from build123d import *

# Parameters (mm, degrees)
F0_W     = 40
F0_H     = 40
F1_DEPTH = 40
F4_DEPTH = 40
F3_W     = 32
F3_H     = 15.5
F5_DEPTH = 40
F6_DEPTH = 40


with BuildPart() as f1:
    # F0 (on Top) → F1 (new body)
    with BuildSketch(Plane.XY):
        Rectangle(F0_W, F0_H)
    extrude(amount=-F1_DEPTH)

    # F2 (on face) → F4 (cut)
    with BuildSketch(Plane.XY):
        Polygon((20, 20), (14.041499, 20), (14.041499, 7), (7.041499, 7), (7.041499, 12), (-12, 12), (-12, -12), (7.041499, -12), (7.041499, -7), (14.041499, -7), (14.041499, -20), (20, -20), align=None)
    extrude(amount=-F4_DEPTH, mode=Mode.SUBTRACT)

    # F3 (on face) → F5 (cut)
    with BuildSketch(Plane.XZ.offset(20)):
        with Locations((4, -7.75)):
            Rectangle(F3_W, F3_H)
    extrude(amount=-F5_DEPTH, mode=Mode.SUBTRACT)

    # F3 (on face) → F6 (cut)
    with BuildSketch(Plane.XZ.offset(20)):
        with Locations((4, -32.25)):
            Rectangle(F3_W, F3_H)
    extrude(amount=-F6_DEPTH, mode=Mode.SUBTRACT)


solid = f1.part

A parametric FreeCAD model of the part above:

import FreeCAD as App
import Part
import Sketcher


def add_polygon(sketch, points):
    """Adds a closed chain of lines whose ends are joined by coincident constraints."""
    first, n = sketch.GeometryCount, len(points)
    for a, b in zip(points, points[1:] + points[:1]):
        sketch.addGeometry(Part.LineSegment(App.Vector(*a, 0), App.Vector(*b, 0)), False)
    for i in range(n):
        sketch.addConstraint(Sketcher.Constraint("Coincident", first + i, 2, first + (i + 1) % n, 1))

doc = App.newDocument("Part")
body = doc.addObject("PartDesign::Body", "Body")

# Sketch on XY plane
sketch1 = body.newObject("Sketcher::SketchObject", "Sketch")
sketch1.AttachmentSupport = (doc.getObject("XY_Plane"), [""])
sketch1.MapMode = "FlatFace"
add_polygon(sketch1, [(-20, 20), (-20, -20), (20, -20), (20, 20)])  # lines 0-3
sketch1.addConstraint(Sketcher.Constraint("Vertical", 0))
sketch1.addConstraint(Sketcher.Constraint("Horizontal", 1))
sketch1.addConstraint(Sketcher.Constraint("Vertical", 2))
sketch1.addConstraint(Sketcher.Constraint("Horizontal", 3))
sketch1.addConstraint(Sketcher.Constraint("Symmetric", 0, 2, 2, 2, -1, 1))
sketch1.addConstraint(Sketcher.Constraint("Equal", 3, 0))
sketch1.addConstraint(Sketcher.Constraint("DistanceX", 1, 1, 1, 2, 40.0))
pad1 = body.newObject("PartDesign::Pad", "Pad")
pad1.Profile = sketch1
pad1.Length = 40
pad1.Reversed = True

# Sketch on XY plane
sketch2 = body.newObject("Sketcher::SketchObject", "Sketch001")
sketch2.AttachmentSupport = (doc.getObject("XY_Plane"), [""])
sketch2.MapMode = "FlatFace"
add_polygon(sketch2, [(20, 20), (14, 20), (14, 7), (7, 7), (7, 12), (-12, 12), (-12, -12), (7, -12), (7, -7), (14, -7), (14, -20), (20, -20)])  # lines 0-11
sketch2.addConstraint(Sketcher.Constraint("Horizontal", 0))
sketch2.addConstraint(Sketcher.Constraint("Vertical", 1))
sketch2.addConstraint(Sketcher.Constraint("Horizontal", 2))
sketch2.addConstraint(Sketcher.Constraint("Vertical", 3))
sketch2.addConstraint(Sketcher.Constraint("Horizontal", 4))
sketch2.addConstraint(Sketcher.Constraint("Vertical", 5))
sketch2.addConstraint(Sketcher.Constraint("Horizontal", 6))
sketch2.addConstraint(Sketcher.Constraint("Vertical", 7))
sketch2.addConstraint(Sketcher.Constraint("Horizontal", 8))
sketch2.addConstraint(Sketcher.Constraint("Vertical", 9))
sketch2.addConstraint(Sketcher.Constraint("Horizontal", 10))
sketch2.addConstraint(Sketcher.Constraint("Vertical", 11))
sketch2.addConstraint(Sketcher.Constraint("Symmetric", 3, 2, 6, 2, -1))
sketch2.addConstraint(Sketcher.Constraint("Symmetric", 1, 2, 8, 2, -1))
sketch2.addConstraint(Sketcher.Constraint("Equal", 1, 9))
sketch2.addConstraint(Sketcher.Constraint("DistanceX", 2, 2, 2, 1, 7.0))
sketch2.addConstraint(Sketcher.Constraint("DistanceY", 1, 2, 1, 1, 13.0))
sketch2.addConstraint(Sketcher.Constraint("DistanceY", 3, 1, 3, 2, 5.0))
sketch2.addConstraint(Sketcher.Constraint("DistanceY", 5, 2, 5, 1, 24.0))
sketch2.addConstraint(Sketcher.Constraint("DistanceX", 4, 2, -1, 1, 12.0))
sketch2.addConstraint(Sketcher.Constraint("DistanceX", -1, 1, 10, 2, 20.0))
sketch2.addConstraint(Sketcher.Constraint("DistanceX", 0, 2, 0, 1, 5.958501))
pocket1 = body.newObject("PartDesign::Pocket", "Pocket")
pocket1.Profile = sketch2
pocket1.Length = 40

# Sketch on XZ plane
sketch3 = body.newObject("Sketcher::SketchObject", "Sketch002")
sketch3.AttachmentSupport = (doc.getObject("XZ_Plane"), [""])
sketch3.MapMode = "FlatFace"
sketch3.AttachmentOffset = App.Placement(App.Vector(0, 0, 20), App.Rotation())
add_polygon(sketch3, [(-12, 0), (-12, -16), (20, -16), (20, 0)])  # lines 0-3
sketch3.addConstraint(Sketcher.Constraint("Vertical", 0))
sketch3.addConstraint(Sketcher.Constraint("Horizontal", 1))
sketch3.addConstraint(Sketcher.Constraint("Vertical", 2))
sketch3.addConstraint(Sketcher.Constraint("Horizontal", 3))
sketch3.addConstraint(Sketcher.Constraint("PointOnObject", 2, 2, -1))
sketch3.addConstraint(Sketcher.Constraint("DistanceX", 1, 1, 1, 2, 32.0))
sketch3.addConstraint(Sketcher.Constraint("DistanceY", 0, 2, 0, 1, 15.5))
sketch3.addConstraint(Sketcher.Constraint("DistanceX", 0, 2, -1, 1, 12.0))
pocket2 = body.newObject("PartDesign::Pocket", "Pocket001")
pocket2.Profile = sketch3
pocket2.Length = 40

# Sketch on XZ plane
sketch4 = body.newObject("Sketcher::SketchObject", "Sketch003")
sketch4.AttachmentSupport = (doc.getObject("XZ_Plane"), [""])
sketch4.MapMode = "FlatFace"
sketch4.AttachmentOffset = App.Placement(App.Vector(0, 0, 20), App.Rotation())
add_polygon(sketch4, [(-12, -24), (-12, -40), (20, -40), (20, -24)])  # lines 0-3
sketch4.addConstraint(Sketcher.Constraint("Vertical", 0))
sketch4.addConstraint(Sketcher.Constraint("Horizontal", 1))
sketch4.addConstraint(Sketcher.Constraint("Vertical", 2))
sketch4.addConstraint(Sketcher.Constraint("Horizontal", 3))
sketch4.addConstraint(Sketcher.Constraint("DistanceX", 1, 1, 1, 2, 32.0))
sketch4.addConstraint(Sketcher.Constraint("DistanceY", 0, 2, 0, 1, 15.5))
sketch4.addConstraint(Sketcher.Constraint("DistanceX", 0, 2, -1, 1, 12.0))
sketch4.addConstraint(Sketcher.Constraint("DistanceY", 0, 2, -1, 1, 40.0))
pocket3 = body.newObject("PartDesign::Pocket", "Pocket002")
pocket3.Profile = sketch4
pocket3.Length = 40

doc.recompute()
